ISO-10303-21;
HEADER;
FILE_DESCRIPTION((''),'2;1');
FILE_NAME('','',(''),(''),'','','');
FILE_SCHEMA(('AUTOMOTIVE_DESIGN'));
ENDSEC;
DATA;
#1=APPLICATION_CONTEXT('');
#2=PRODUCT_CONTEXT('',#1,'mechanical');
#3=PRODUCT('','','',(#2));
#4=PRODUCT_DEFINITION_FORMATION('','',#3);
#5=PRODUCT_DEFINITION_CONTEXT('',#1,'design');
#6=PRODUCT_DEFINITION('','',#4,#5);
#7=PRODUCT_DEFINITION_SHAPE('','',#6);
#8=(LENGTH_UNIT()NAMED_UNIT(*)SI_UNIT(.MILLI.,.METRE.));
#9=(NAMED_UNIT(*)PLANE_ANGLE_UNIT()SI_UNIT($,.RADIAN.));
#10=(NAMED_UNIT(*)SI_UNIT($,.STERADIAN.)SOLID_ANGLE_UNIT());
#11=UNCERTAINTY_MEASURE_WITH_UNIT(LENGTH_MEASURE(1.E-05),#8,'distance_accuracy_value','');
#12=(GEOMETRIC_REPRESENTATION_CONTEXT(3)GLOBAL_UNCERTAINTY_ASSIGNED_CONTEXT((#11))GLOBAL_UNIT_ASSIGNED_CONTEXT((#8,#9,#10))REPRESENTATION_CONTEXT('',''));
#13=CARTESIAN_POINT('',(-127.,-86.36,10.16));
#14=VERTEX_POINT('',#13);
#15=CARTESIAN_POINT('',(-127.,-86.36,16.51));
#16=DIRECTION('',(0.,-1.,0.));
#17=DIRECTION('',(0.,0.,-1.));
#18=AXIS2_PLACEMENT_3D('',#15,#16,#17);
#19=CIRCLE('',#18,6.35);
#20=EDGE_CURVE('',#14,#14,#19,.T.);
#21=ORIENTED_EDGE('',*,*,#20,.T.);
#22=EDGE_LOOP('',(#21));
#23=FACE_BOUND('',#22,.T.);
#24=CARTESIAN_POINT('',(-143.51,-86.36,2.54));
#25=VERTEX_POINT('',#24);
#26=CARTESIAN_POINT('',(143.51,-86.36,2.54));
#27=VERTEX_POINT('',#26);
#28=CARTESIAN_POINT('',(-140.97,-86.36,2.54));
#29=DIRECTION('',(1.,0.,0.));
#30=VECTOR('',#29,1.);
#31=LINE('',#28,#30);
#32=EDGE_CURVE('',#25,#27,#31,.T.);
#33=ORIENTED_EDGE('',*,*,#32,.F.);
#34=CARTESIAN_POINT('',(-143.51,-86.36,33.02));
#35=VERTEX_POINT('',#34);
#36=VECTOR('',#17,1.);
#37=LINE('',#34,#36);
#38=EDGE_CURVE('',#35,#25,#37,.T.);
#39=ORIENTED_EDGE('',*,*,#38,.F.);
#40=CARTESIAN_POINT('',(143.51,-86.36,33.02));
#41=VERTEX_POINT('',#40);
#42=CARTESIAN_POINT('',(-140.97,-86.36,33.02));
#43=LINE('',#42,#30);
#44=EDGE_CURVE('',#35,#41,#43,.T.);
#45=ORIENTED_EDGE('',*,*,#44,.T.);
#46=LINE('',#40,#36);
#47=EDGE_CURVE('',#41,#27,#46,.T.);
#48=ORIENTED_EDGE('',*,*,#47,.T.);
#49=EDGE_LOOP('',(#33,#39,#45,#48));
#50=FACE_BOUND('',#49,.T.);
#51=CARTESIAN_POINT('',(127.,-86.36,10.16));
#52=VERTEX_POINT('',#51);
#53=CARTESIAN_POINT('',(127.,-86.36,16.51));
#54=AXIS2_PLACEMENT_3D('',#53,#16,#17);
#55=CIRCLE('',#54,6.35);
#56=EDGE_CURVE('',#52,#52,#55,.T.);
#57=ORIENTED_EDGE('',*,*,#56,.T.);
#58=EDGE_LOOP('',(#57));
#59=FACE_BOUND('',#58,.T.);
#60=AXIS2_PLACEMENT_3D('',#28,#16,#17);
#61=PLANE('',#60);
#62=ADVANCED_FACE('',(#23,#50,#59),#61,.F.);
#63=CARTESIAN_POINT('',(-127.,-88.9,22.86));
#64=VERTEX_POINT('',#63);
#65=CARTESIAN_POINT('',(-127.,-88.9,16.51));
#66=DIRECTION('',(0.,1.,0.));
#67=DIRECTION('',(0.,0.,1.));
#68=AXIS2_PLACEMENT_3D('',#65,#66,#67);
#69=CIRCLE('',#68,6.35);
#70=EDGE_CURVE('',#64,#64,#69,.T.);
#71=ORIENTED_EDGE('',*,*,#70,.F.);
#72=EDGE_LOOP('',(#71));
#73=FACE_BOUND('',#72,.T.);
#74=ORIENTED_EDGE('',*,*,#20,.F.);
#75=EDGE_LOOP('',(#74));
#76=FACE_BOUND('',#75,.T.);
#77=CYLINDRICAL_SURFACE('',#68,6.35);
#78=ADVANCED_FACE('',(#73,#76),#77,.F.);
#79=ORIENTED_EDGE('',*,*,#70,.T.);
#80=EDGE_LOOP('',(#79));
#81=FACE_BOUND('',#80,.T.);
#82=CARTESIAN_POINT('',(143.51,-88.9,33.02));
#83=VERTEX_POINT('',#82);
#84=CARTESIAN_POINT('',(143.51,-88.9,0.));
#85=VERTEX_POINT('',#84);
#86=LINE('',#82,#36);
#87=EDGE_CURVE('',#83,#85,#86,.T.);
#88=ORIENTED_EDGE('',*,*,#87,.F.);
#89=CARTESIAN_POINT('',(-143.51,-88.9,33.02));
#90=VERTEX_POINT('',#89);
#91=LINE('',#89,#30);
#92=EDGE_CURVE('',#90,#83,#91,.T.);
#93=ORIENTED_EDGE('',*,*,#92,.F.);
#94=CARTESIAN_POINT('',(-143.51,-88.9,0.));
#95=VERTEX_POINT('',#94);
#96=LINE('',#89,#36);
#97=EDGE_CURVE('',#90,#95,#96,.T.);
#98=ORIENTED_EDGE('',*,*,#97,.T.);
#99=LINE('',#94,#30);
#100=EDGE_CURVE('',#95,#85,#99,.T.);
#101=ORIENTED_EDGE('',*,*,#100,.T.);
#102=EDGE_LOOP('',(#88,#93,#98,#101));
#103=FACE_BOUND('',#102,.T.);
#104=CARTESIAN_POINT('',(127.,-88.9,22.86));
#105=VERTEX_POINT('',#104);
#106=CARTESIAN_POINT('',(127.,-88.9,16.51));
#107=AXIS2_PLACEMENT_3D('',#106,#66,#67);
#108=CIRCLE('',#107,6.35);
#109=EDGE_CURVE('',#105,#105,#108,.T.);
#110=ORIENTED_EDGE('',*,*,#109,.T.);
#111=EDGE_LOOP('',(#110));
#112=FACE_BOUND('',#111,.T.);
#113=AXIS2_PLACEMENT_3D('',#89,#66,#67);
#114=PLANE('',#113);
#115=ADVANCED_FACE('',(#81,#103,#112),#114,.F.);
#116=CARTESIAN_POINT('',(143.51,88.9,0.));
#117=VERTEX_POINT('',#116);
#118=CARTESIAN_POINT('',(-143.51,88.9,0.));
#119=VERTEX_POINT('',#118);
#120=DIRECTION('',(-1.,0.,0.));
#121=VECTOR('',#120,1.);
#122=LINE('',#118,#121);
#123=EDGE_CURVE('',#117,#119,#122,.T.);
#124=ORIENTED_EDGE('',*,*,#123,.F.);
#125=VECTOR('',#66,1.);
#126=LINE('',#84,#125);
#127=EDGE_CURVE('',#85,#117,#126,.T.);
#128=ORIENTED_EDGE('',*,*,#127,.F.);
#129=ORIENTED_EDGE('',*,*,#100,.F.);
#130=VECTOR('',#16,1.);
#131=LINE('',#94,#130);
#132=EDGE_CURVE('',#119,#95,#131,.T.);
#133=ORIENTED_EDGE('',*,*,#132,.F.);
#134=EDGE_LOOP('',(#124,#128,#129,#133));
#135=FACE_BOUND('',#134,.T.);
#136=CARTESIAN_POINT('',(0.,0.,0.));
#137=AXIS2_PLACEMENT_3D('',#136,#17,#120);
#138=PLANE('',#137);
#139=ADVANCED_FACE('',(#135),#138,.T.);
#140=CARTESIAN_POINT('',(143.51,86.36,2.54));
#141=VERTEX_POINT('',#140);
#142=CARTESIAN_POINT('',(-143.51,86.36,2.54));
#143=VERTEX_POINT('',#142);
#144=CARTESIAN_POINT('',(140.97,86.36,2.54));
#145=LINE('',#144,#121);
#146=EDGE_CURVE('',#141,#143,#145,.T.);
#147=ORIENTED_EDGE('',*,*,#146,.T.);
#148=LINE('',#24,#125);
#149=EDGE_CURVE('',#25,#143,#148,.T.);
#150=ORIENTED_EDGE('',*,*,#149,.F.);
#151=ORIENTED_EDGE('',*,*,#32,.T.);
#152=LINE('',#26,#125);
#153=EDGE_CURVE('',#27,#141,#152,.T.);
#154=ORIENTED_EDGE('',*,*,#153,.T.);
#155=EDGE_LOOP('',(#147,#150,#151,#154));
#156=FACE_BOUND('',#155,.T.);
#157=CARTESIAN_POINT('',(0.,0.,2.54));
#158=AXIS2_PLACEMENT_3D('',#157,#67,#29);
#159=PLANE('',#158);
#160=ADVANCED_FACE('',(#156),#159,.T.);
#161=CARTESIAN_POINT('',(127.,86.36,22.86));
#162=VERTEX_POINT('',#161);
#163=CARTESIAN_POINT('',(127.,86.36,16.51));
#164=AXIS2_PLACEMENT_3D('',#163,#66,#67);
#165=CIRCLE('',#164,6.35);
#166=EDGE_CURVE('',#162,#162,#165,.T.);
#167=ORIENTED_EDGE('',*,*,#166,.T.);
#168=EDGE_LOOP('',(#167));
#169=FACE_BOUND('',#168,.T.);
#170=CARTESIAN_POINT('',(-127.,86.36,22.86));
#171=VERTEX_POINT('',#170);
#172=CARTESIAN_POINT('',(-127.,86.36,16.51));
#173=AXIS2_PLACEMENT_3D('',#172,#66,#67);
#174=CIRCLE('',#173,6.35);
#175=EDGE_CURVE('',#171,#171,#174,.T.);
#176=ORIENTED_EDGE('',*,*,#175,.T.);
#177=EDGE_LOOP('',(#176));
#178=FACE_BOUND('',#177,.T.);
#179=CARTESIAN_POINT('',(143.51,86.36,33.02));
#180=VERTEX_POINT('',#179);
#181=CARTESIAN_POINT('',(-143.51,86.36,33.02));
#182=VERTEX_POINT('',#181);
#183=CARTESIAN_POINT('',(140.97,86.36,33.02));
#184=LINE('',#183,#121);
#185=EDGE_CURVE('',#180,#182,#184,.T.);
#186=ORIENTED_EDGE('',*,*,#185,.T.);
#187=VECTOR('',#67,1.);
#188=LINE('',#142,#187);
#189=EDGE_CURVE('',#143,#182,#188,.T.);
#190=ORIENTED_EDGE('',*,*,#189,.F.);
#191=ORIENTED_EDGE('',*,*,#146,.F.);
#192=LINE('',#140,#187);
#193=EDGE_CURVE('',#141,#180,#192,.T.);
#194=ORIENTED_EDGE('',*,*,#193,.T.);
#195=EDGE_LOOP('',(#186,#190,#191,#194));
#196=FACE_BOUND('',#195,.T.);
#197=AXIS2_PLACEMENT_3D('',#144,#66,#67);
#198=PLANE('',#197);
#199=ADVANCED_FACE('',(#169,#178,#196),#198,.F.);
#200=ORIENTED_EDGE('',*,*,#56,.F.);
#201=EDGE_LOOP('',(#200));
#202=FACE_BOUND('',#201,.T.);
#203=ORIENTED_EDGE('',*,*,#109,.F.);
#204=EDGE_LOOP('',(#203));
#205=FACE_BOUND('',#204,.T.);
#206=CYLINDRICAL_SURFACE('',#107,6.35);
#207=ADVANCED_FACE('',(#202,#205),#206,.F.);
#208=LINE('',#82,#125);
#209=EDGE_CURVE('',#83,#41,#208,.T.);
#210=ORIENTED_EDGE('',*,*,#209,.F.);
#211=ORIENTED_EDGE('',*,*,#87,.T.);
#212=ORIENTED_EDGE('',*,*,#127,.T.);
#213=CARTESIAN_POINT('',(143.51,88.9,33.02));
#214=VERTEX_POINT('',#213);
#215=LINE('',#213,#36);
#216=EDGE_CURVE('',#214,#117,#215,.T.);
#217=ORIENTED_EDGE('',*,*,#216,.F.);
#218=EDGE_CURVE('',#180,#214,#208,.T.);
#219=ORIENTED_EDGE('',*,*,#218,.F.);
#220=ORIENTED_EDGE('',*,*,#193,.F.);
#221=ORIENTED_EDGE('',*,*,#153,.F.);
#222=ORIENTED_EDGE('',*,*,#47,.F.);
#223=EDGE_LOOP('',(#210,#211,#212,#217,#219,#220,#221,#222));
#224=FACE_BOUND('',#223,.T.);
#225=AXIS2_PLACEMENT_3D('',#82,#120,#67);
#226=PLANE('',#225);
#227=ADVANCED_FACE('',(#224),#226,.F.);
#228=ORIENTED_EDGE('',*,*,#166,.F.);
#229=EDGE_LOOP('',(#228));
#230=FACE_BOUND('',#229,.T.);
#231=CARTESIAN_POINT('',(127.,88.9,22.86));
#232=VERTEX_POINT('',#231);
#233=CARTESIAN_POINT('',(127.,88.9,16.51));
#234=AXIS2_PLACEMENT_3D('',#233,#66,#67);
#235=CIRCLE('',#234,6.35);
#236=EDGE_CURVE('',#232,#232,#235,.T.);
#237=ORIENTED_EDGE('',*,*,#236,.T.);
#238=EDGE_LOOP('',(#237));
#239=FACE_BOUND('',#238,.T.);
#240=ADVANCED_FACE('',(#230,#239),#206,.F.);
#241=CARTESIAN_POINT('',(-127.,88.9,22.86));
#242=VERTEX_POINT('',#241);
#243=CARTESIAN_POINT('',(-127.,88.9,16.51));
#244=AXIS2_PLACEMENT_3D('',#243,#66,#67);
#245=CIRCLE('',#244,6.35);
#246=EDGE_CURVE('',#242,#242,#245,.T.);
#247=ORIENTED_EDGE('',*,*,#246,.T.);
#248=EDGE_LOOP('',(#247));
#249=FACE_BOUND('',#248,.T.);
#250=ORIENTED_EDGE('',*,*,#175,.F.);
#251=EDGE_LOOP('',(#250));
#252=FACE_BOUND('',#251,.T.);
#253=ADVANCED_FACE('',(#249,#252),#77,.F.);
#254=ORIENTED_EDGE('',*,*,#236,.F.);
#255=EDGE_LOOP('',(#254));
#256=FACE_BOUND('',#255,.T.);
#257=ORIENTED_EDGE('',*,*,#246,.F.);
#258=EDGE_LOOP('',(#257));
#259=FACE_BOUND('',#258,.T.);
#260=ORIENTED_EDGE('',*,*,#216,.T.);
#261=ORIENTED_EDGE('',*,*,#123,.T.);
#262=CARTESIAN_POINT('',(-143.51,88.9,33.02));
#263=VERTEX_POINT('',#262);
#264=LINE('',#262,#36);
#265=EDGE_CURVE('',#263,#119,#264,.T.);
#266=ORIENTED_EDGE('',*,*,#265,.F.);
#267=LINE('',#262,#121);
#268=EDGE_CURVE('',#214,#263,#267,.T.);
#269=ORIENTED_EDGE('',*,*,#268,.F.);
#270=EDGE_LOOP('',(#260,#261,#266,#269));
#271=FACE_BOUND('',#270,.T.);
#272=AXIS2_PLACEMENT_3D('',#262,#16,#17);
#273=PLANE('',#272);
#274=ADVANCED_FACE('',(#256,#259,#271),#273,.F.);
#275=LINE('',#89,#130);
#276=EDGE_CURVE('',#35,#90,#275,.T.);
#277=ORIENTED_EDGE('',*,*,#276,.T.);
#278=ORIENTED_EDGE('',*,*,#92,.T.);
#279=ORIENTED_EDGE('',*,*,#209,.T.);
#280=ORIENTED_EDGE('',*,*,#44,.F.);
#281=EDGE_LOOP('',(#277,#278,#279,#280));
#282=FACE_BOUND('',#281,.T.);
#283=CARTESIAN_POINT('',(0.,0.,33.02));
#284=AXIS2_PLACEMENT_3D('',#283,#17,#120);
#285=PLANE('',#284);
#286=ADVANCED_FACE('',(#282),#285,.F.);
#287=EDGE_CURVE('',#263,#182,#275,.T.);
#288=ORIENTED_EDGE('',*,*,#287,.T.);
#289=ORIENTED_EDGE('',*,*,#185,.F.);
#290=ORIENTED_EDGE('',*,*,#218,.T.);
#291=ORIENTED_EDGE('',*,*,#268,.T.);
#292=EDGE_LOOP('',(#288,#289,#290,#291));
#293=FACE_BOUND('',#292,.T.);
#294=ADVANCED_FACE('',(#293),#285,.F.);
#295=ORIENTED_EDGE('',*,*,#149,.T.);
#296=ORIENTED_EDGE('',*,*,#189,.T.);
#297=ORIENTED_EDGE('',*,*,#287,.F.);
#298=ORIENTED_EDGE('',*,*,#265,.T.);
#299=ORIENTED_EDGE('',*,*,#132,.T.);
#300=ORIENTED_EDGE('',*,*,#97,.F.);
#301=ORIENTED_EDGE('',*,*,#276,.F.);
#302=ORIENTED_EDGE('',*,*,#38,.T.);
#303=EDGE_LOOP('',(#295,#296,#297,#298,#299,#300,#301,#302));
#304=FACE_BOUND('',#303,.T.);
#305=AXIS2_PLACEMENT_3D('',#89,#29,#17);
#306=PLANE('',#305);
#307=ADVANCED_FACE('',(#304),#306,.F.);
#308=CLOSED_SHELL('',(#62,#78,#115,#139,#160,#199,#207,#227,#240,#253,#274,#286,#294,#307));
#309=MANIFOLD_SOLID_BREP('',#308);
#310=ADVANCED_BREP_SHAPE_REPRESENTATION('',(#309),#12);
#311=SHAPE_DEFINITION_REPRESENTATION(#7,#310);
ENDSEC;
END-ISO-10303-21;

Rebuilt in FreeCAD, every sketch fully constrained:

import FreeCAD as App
import Part
import Sketcher
Q = App.Units.Quantity

doc = App.newDocument("Part")
body = doc.addObject("PartDesign::Body", "Body")

# Sketch on XY plane
sketch1 = body.newObject("Sketcher::SketchObject", "Sketch")
sketch1.AttachmentSupport = (doc.getObject("XY_Plane"), [""])
sketch1.MapMode = "FlatFace"
sketch1.addGeometry([
    Part.LineSegment(App.Vector(-144, 89, 0), App.Vector(-144, -89, 0)),
    Part.LineSegment(App.Vector(-144, -89, 0), App.Vector(144, -89, 0)),
    Part.LineSegment(App.Vector(144, -89, 0), App.Vector(144, 89, 0)),
    Part.LineSegment(App.Vector(144, 89, 0), App.Vector(-144, 89, 0)),
], False)
sketch1.addConstraint([
    Sketcher.Constraint("Coincident", 0, 2, 1, 1),
    Sketcher.Constraint("Coincident", 1, 2, 2, 1),
    Sketcher.Constraint("Coincident", 2, 2, 3, 1),
    Sketcher.Constraint("Coincident", 3, 2, 0, 1),
    Sketcher.Constraint("Vertical", 0),
    Sketcher.Constraint("Horizontal", 1),
    Sketcher.Constraint("Vertical", 2),
    Sketcher.Constraint("Horizontal", 3),
    Sketcher.Constraint("Symmetric", 0, 2, 2, 2, -1, 1),
    Sketcher.Constraint("DistanceY", 0, 2, 0, 1, Q("7 in")),
    Sketcher.Constraint("DistanceX", 1, 1, 1, 2, Q("11.3 in")),
])
pad1 = body.newObject("PartDesign::Pad", "Pad")
pad1.Profile = sketch1
pad1.Length = Q("1.3 in")

# Sketch on XY plane
sketch2 = body.newObject("Sketcher::SketchObject", "Sketch001")
sketch2.AttachmentSupport = (doc.getObject("XY_Plane"), [""])
sketch2.MapMode = "FlatFace"
sketch2.AttachmentOffset = App.Placement(App.Vector(0, 0, 1.3 * 25.4), App.Rotation())
sketch2.addGeometry([
    Part.LineSegment(App.Vector(-141, 86, 0), App.Vector(-141, -86, 0)),
    Part.LineSegment(App.Vector(-141, -86, 0), App.Vector(141, -86, 0)),
    Part.LineSegment(App.Vector(141, -86, 0), App.Vector(141, 86, 0)),
    Part.LineSegment(App.Vector(141, 86, 0), App.Vector(-141, 86, 0)),
], False)
sketch2.addConstraint([
    Sketcher.Constraint("Coincident", 0, 2, 1, 1),
    Sketcher.Constraint("Coincident", 1, 2, 2, 1),
    Sketcher.Constraint("Coincident", 2, 2, 3, 1),
    Sketcher.Constraint("Coincident", 3, 2, 0, 1),
    Sketcher.Constraint("Vertical", 0),
    Sketcher.Constraint("Horizontal", 1),
    Sketcher.Constraint("Vertical", 2),
    Sketcher.Constraint("Horizontal", 3),
    Sketcher.Constraint("Symmetric", 0, 2, 2, 2, -1, 1),
    Sketcher.Constraint("DistanceX", 1, 1, 1, 2, Q("11.1 in")),
    Sketcher.Constraint("DistanceY", 0, 2, 0, 1, Q("6.8 in")),
])
pocket1 = body.newObject("PartDesign::Pocket", "Pocket")
pocket1.Profile = sketch2
pocket1.Length = Q("1.2 in")

# Sketch on YZ plane
sketch3 = body.newObject("Sketcher::SketchObject", "Sketch002")
sketch3.AttachmentSupport = (doc.getObject("YZ_Plane"), [""])
sketch3.MapMode = "FlatFace"
sketch3.AttachmentOffset = App.Placement(App.Vector(0, 0, -5.55 * 25.4), App.Rotation())
sketch3.addGeometry([
    Part.LineSegment(App.Vector(86, 33, 0), App.Vector(-86, 33, 0)),
    Part.LineSegment(App.Vector(-86, 33, 0), App.Vector(-86, 3, 0)),
    Part.LineSegment(App.Vector(-86, 3, 0), App.Vector(86, 3, 0)),
    Part.LineSegment(App.Vector(86, 3, 0), App.Vector(86, 33, 0)),
], False)
sketch3.addConstraint([
    Sketcher.Constraint("Coincident", 0, 2, 1, 1),
    Sketcher.Constraint("Coincident", 1, 2, 2, 1),
    Sketcher.Constraint("Coincident", 2, 2, 3, 1),
    Sketcher.Constraint("Coincident", 3, 2, 0, 1),
    Sketcher.Constraint("Horizontal", 0),
    Sketcher.Constraint("Vertical", 1),
    Sketcher.Constraint("Horizontal", 2),
    Sketcher.Constraint("Vertical", 3),
    Sketcher.Constraint("DistanceX", 0, 2, 0, 1, Q("6.8 in")),
    Sketcher.Constraint("DistanceY", 1, 2, 1, 1, Q("1.2 in")),
    Sketcher.Constraint("DistanceX", 0, 2, -1, 1, Q("3.4 in")),
    Sketcher.Constraint("DistanceY", -1, 1, 0, 2, Q("1.3 in")),
])
pocket2 = body.newObject("PartDesign::Pocket", "Pocket001")
pocket2.Profile = sketch3
pocket2.Type = "ThroughAll"
pocket2.Midplane = True

# Sketch on XZ plane
sketch4 = body.newObject("Sketcher::SketchObject", "Sketch003")
sketch4.AttachmentSupport = (doc.getObject("XZ_Plane"), [""])
sketch4.MapMode = "FlatFace"
sketch4.AttachmentOffset = App.Placement(App.Vector(0, 0, 3.4 * 25.4), App.Rotation())
sketch4.addGeometry([
    Part.Circle(App.Vector(127, 17, 0), App.Vector(0, 0, 1), 6),
    Part.Circle(App.Vector(-127, 17, 0), App.Vector(0, 0, 1), 6),
], False)
sketch4.addConstraint([
    Sketcher.Constraint("Equal", 0, 1),
    Sketcher.Constraint("Symmetric", 0, 3, 1, 3, -2),
    Sketcher.Constraint("Diameter", 0, Q("0.5 in")),
    Sketcher.Constraint("DistanceX", -1, 1, 0, 3, Q("5 in")),
    Sketcher.Constraint("DistanceY", -1, 1, 0, 3, Q("0.65 in")),
])
pocket3 = body.newObject("PartDesign::Pocket", "Pocket002")
pocket3.Profile = sketch4
pocket3.Type = "ThroughAll"
pocket3.Midplane = True

doc.recompute()
